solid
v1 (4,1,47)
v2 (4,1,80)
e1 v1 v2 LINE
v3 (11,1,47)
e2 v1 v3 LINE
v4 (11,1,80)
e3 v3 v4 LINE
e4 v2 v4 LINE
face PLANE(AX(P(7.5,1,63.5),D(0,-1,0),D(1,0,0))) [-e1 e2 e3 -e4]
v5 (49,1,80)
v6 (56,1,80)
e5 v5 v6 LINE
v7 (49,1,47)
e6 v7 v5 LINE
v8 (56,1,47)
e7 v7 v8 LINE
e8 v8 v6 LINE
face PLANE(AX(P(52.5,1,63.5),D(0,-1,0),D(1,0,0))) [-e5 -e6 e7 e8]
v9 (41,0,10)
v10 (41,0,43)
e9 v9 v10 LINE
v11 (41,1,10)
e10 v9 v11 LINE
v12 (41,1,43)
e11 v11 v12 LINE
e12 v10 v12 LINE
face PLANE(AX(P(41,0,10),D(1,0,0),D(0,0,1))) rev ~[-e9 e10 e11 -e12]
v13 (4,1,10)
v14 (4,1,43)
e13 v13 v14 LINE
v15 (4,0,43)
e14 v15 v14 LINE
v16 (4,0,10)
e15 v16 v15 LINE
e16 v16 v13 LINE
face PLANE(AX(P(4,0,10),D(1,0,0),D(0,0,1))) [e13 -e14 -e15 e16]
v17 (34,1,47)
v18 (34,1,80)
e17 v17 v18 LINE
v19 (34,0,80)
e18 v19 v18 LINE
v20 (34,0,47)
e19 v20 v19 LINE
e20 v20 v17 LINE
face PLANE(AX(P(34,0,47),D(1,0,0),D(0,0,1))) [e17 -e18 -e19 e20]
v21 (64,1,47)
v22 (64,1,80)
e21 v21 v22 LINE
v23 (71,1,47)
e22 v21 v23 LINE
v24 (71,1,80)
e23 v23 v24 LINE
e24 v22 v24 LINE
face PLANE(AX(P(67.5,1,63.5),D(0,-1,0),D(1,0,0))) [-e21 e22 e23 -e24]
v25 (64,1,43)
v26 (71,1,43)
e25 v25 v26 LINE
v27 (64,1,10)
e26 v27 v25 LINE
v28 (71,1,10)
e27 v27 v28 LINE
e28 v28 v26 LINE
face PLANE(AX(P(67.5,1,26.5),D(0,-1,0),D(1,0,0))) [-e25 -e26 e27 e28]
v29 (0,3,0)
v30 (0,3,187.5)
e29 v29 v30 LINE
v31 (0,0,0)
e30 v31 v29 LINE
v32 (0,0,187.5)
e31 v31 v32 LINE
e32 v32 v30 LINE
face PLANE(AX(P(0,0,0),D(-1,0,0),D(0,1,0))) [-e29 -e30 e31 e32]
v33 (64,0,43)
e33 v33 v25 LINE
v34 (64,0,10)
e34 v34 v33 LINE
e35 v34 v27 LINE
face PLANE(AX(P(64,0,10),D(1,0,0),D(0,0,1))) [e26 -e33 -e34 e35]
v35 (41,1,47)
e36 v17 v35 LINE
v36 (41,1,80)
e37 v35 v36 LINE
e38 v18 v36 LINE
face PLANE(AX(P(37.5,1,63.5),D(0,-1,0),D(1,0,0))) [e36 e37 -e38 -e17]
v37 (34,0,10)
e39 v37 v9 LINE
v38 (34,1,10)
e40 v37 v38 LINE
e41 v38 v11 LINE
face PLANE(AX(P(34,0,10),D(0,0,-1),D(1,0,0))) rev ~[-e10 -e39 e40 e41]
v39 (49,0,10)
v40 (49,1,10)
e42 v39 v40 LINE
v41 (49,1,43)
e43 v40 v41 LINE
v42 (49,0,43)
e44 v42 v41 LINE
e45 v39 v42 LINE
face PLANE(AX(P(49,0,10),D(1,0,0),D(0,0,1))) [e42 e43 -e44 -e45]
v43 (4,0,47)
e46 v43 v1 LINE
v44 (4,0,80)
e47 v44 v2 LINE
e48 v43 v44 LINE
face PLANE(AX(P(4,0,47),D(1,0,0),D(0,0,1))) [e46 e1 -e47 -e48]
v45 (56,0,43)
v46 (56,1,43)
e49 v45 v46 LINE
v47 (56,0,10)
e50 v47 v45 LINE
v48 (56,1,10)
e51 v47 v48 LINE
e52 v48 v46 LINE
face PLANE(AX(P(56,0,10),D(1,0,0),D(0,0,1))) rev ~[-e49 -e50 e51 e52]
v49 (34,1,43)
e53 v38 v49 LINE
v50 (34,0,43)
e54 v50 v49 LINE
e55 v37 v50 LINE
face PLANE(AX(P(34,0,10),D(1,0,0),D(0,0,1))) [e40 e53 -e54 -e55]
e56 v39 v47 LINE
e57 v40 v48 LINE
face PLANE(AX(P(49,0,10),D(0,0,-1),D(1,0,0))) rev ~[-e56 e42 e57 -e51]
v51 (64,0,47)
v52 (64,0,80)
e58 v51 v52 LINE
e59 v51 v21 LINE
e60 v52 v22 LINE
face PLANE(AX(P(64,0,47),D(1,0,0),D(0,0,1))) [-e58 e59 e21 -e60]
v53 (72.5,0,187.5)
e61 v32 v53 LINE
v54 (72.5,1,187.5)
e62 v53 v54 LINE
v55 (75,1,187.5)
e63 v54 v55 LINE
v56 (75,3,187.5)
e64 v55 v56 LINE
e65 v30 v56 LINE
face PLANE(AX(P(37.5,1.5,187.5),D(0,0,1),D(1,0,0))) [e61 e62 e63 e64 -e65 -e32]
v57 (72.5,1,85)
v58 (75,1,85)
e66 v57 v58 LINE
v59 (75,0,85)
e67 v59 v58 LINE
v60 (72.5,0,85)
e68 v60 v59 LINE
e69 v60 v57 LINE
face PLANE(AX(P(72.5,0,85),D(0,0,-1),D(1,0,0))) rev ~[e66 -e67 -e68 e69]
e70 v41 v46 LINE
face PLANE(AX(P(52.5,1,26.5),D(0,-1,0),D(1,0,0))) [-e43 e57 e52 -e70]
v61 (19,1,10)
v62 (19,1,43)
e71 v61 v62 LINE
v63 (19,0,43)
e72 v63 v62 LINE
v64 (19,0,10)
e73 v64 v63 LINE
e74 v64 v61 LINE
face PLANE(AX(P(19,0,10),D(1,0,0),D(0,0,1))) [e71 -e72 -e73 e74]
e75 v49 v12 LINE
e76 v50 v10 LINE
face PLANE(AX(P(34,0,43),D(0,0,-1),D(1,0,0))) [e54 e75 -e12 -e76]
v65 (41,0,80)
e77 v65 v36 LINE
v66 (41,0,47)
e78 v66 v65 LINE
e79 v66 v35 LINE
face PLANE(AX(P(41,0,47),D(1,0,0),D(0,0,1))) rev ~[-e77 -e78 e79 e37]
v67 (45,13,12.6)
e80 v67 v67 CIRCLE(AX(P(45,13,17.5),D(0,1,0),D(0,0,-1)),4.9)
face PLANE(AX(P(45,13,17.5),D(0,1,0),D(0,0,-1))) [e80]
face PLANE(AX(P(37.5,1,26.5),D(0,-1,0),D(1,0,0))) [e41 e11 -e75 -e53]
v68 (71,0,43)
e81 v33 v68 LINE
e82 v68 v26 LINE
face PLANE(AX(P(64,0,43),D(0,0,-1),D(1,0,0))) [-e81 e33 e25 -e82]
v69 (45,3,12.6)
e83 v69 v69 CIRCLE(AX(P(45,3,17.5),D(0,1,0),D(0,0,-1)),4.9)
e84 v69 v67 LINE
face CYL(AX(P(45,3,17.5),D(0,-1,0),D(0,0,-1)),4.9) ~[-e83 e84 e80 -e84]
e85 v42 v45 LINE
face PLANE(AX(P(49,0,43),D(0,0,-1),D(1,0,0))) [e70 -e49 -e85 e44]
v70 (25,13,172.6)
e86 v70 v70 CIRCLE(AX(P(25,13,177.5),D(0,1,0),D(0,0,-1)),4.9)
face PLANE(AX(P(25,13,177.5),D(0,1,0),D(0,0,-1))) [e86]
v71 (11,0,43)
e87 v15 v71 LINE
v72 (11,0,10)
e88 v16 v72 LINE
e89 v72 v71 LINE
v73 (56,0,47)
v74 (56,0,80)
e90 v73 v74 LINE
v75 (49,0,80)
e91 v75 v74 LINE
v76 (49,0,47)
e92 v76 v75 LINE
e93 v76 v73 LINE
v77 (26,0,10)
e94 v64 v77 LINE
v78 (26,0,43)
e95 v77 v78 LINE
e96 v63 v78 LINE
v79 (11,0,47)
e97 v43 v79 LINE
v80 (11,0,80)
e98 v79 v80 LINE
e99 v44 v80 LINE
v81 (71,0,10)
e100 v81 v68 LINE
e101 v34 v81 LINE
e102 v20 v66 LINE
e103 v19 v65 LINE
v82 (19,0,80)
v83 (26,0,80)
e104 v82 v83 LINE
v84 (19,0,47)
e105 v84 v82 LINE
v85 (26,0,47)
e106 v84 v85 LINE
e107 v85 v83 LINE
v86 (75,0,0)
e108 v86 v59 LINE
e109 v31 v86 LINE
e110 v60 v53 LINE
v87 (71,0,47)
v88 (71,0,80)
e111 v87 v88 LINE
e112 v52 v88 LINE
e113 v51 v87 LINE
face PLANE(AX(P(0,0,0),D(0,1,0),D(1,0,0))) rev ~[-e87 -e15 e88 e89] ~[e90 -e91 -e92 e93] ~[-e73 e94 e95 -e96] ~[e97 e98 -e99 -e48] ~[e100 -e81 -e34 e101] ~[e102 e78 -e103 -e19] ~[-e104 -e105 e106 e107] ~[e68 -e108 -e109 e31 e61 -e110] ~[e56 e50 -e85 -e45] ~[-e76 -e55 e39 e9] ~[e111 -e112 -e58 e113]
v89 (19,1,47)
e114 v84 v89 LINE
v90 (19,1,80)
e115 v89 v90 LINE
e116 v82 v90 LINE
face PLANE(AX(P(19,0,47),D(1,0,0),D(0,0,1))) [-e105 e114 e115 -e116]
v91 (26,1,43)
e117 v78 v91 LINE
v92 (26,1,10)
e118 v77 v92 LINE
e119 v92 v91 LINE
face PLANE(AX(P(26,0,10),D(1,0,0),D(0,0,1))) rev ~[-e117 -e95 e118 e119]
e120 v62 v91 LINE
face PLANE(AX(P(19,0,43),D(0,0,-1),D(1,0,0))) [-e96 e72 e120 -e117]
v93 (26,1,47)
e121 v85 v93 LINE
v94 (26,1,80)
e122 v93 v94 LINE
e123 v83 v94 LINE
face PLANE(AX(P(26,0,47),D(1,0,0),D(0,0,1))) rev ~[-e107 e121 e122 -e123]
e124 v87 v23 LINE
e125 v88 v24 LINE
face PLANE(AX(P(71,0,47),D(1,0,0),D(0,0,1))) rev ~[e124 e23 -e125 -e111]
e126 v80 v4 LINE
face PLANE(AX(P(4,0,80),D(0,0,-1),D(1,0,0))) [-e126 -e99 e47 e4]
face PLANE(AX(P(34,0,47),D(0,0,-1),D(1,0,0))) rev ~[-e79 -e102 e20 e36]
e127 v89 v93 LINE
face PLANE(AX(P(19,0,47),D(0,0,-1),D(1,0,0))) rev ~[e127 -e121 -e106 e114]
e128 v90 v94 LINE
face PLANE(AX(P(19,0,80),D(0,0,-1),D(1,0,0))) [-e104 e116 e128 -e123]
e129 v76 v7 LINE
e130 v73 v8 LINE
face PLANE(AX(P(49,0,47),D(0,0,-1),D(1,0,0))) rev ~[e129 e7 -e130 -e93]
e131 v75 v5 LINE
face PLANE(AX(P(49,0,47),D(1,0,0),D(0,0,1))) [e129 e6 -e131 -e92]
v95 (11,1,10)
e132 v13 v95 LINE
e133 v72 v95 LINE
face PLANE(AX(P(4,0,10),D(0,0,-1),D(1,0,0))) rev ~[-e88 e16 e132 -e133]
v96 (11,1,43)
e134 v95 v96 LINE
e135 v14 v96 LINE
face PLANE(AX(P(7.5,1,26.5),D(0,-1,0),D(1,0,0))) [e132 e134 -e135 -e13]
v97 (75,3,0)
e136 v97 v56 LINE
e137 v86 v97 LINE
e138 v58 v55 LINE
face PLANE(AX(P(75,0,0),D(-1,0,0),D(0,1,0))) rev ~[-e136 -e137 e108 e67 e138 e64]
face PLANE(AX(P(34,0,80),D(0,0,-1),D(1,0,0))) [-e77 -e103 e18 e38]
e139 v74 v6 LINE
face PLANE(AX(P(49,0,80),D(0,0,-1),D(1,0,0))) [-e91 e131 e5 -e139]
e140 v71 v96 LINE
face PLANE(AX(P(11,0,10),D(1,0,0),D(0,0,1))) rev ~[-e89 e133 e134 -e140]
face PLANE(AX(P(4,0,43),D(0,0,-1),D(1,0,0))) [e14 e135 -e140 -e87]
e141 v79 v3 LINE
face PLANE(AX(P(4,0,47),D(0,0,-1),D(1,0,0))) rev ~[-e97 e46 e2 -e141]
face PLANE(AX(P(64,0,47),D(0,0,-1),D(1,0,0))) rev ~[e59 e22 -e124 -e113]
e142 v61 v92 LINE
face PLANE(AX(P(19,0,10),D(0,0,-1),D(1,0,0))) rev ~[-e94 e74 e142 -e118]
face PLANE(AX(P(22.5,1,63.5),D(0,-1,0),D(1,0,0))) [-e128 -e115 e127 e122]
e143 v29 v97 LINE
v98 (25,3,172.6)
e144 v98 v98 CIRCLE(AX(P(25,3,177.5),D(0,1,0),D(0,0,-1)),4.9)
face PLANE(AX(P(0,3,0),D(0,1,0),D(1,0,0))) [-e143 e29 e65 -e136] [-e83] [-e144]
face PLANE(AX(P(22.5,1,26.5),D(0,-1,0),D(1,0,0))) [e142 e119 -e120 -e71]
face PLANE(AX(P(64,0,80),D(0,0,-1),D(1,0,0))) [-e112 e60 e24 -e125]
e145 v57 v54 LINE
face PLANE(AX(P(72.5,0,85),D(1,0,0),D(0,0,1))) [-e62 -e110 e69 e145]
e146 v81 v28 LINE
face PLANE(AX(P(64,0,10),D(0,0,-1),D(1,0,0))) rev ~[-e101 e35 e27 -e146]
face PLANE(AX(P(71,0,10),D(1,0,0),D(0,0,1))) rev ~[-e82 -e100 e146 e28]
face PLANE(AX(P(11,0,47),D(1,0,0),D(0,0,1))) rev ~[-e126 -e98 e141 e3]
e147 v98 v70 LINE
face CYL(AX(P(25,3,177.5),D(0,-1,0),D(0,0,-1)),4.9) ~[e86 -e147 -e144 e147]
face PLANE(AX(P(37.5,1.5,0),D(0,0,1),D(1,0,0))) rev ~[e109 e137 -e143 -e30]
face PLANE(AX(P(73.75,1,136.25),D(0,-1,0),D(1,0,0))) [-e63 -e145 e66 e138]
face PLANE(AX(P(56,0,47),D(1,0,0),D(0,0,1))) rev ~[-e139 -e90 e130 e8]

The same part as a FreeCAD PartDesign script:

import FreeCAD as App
import Part
import Sketcher
from FreeCAD import Vector


def add_polygon(sketch, points):
    """Adds a closed chain of lines whose ends are joined by coincident constraints."""
    first, n = sketch.GeometryCount, len(points)
    for a, b in zip(points, points[1:] + points[:1]):
        sketch.addGeometry(Part.LineSegment(App.Vector(*a, 0), App.Vector(*b, 0)), False)
    for i in range(n):
        sketch.addConstraint(Sketcher.Constraint("Coincident", first + i, 2, first + (i + 1) % n, 1))

doc = App.newDocument("Part")
body = doc.addObject("PartDesign::Body", "Body")

# Sketch on XY plane
sketch1 = body.newObject("Sketcher::SketchObject", "Sketch")
sketch1.AttachmentSupport = (doc.getObject("XY_Plane"), [""])
sketch1.MapMode = "FlatFace"
add_polygon(sketch1, [(0, 3), (0, 0), (75, 0), (75, 3)])  # lines 0-3
sketch1.addConstraint([
    Sketcher.Constraint("Vertical", 0),
    Sketcher.Constraint("Horizontal", 1),
    Sketcher.Constraint("Vertical", 2),
    Sketcher.Constraint("Horizontal", 3),
    Sketcher.Constraint("Coincident", 0, 2, -1, 1),
    Sketcher.Constraint("DistanceX", 1, 1, 1, 2, 75.0),
    Sketcher.Constraint("DistanceY", 0, 2, 0, 1, 3.0),
])
pad1 = body.newObject("PartDesign::Pad", "Pad")
pad1.Profile = sketch1
pad1.Length = 187.5

# Sketch on XZ plane
sketch2 = body.newObject("Sketcher::SketchObject", "Sketch001")
sketch2.AttachmentSupport = (doc.getObject("XZ_Plane"), [""])
sketch2.MapMode = "FlatFace"
sketch2.AttachmentOffset = App.Placement(Vector(0, 0, -3), App.Rotation())
sketch2.addGeometry([
    Part.Circle(Vector(25, 177.5, 0), Vector(0, 0, 1), 4.9),
    Part.Circle(Vector(45, 17.5, 0), Vector(0, 0, 1), 4.9),
], False)
sketch2.addConstraint([
    Sketcher.Constraint("Equal", 0, 1),
    Sketcher.Constraint("Diameter", 0, 9.8),
    Sketcher.Constraint("DistanceX", -1, 1, 0, 3, 25.0),
    Sketcher.Constraint("DistanceX", -1, 1, 1, 3, 45.0),
    Sketcher.Constraint("DistanceY", 1, 3, 0, 3, 160.0),
    Sketcher.Constraint("DistanceY", -1, 1, 0, 3, 177.5),
])
pad2 = body.newObject("PartDesign::Pad", "Pad001")
pad2.Profile = sketch2
pad2.Length = 10
pad2.Reversed = True

# Sketch on XZ plane
sketch3 = body.newObject("Sketcher::SketchObject", "Sketch002")
sketch3.AttachmentSupport = (doc.getObject("XZ_Plane"), [""])
sketch3.MapMode = "FlatFace"
add_polygon(sketch3, [(4, 43), (4, 10), (11, 10), (11, 43)])  # lines 0-3
add_polygon(sketch3, [(4, 80), (4, 47), (11, 47), (11, 80)])  # lines 4-7
add_polygon(sketch3, [(19, 43), (19, 10), (26, 10), (26, 43)])  # lines 8-11
add_polygon(sketch3, [(19, 80), (19, 47), (26, 47), (26, 80)])  # lines 12-15
add_polygon(sketch3, [(34, 43), (34, 10), (41, 10), (41, 43)])  # lines 16-19
add_polygon(sketch3, [(34, 80), (34, 47), (41, 47), (41, 80)])  # lines 20-23
add_polygon(sketch3, [(49, 43), (49, 10), (56, 10), (56, 43)])  # lines 24-27
add_polygon(sketch3, [(49, 80), (49, 47), (56, 47), (56, 80)])  # lines 28-31
add_polygon(sketch3, [(64, 43), (64, 10), (71, 10), (71, 43)])  # lines 32-35
add_polygon(sketch3, [(64, 80), (64, 47), (71, 47), (71, 80)])  # lines 36-39
add_polygon(sketch3, [(72.5, 187.5), (72.5, 85), (75, 85), (75, 187.5)])  # lines 40-43
sketch3.addConstraint([
    Sketcher.Constraint("Vertical", 0),
    Sketcher.Constraint("Horizontal", 1),
    Sketcher.Constraint("Vertical", 2),
    Sketcher.Constraint("Horizontal", 3),
    Sketcher.Constraint("Vertical", 4),
    Sketcher.Constraint("Horizontal", 5),
    Sketcher.Constraint("Vertical", 6),
    Sketcher.Constraint("Horizontal", 7),
    Sketcher.Constraint("Vertical", 8),
    Sketcher.Constraint("Horizontal", 9),
    Sketcher.Constraint("Vertical", 10),
    Sketcher.Constraint("Horizontal", 11),
    Sketcher.Constraint("Vertical", 12),
    Sketcher.Constraint("Horizontal", 13),
    Sketcher.Constraint("Vertical", 14),
    Sketcher.Constraint("Horizontal", 15),
    Sketcher.Constraint("Vertical", 16),
    Sketcher.Constraint("Horizontal", 17),
    Sketcher.Constraint("Vertical", 18),
    Sketcher.Constraint("Horizontal", 19),
    Sketcher.Constraint("Vertical", 20),
    Sketcher.Constraint("Horizontal", 21),
    Sketcher.Constraint("Vertical", 22),
    Sketcher.Constraint("Horizontal", 23),
    Sketcher.Constraint("Vertical", 24),
    Sketcher.Constraint("Horizontal", 25),
    Sketcher.Constraint("Vertical", 26),
    Sketcher.Constraint("Horizontal", 27),
    Sketcher.Constraint("Vertical", 28),
    Sketcher.Constraint("Horizontal", 29),
    Sketcher.Constraint("Vertical", 30),
    Sketcher.Constraint("Horizontal", 31),
    Sketcher.Constraint("Vertical", 32),
    Sketcher.Constraint("Horizontal", 33),
    Sketcher.Constraint("Vertical", 34),
    Sketcher.Constraint("Horizontal", 35),
    Sketcher.Constraint("Vertical", 36),
    Sketcher.Constraint("Horizontal", 37),
    Sketcher.Constraint("Vertical", 38),
    Sketcher.Constraint("Horizontal", 39),
    Sketcher.Constraint("Vertical", 40),
    Sketcher.Constraint("Horizontal", 41),
    Sketcher.Constraint("Vertical", 42),
    Sketcher.Constraint("Horizontal", 43),
    Sketcher.Constraint("Horizontal", 1, 2, 8, 2),
    Sketcher.Constraint("Horizontal", 3, 2, 10, 2),
    Sketcher.Constraint("Horizontal", 5, 2, 12, 2),
    Sketcher.Constraint("Horizontal", 7, 2, 14, 2),
    Sketcher.Constraint("Horizontal", 9, 2, 16, 2),
    Sketcher.Constraint("Horizontal", 11, 2, 18, 2),
    Sketcher.Constraint("Horizontal", 13, 2, 20, 2),
    Sketcher.Constraint("Horizontal", 15, 2, 22, 2),
    Sketcher.Constraint("Horizontal", 17, 2, 24, 2),
    Sketcher.Constraint("Horizontal", 19, 2, 26, 2),
    Sketcher.Constraint("Horizontal", 21, 2, 28, 2),
    Sketcher.Constraint("Horizontal", 23, 2, 30, 2),
    Sketcher.Constraint("Horizontal", 25, 2, 32, 2),
    Sketcher.Constraint("Horizontal", 27, 2, 34, 2),
    Sketcher.Constraint("Horizontal", 29, 2, 36, 2),
    Sketcher.Constraint("Horizontal", 31, 2, 38, 2),
    Sketcher.Constraint("Vertical", 3, 2, 4, 2),
    Sketcher.Constraint("Vertical", 2, 2, 5, 2),
    Sketcher.Constraint("Vertical", 11, 2, 12, 2),
    Sketcher.Constraint("Vertical", 10, 2, 13, 2),
    Sketcher.Constraint("Vertical", 19, 2, 20, 2),
    Sketcher.Constraint("Vertical", 18, 2, 21, 2),
    Sketcher.Constraint("Vertical", 27, 2, 28, 2),
    Sketcher.Constraint("Vertical", 26, 2, 29, 2),
    Sketcher.Constraint("Vertical", 35, 2, 36, 2),
    Sketcher.Constraint("Vertical", 34, 2, 37, 2),
    Sketcher.Constraint("Equal", 7, 9),
    Sketcher.Constraint("Equal", 15, 17),
    Sketcher.Constraint("Equal", 23, 25),
    Sketcher.Constraint("Equal", 31, 33),
    Sketcher.Constraint("Equal", 2, 4),
    Sketcher.Constraint("DistanceX", 1, 1, 1, 2, 7.0),
    Sketcher.Constraint("DistanceY", 0, 2, 0, 1, 33.0),
    Sketcher.Constraint("DistanceX", 41, 1, 41, 2, 2.5),
    Sketcher.Constraint("DistanceY", 40, 2, 40, 1, 102.5),
    Sketcher.Constraint("DistanceX", -1, 1, 0, 2, 4.0),
    Sketcher.Constraint("DistanceY", -1, 1, 0, 2, 10.0),
    Sketcher.Constraint("DistanceY", -1, 1, 4, 2, 47.0),
    Sketcher.Constraint("DistanceX", -1, 1, 8, 2, 19.0),
    Sketcher.Constraint("DistanceX", -1, 1, 16, 2, 34.0),
    Sketcher.Constraint("DistanceX", -1, 1, 24, 2, 49.0),
    Sketcher.Constraint("DistanceX", -1, 1, 32, 2, 64.0),
    Sketcher.Constraint("DistanceY", -1, 1, 40, 2, 85.0),
    Sketcher.Constraint("DistanceX", -1, 1, 41, 2, 75.0),
])
pocket1 = body.newObject("PartDesign::Pocket", "Pocket")
pocket1.Profile = sketch3
pocket1.Length = 1

doc.recompute()
